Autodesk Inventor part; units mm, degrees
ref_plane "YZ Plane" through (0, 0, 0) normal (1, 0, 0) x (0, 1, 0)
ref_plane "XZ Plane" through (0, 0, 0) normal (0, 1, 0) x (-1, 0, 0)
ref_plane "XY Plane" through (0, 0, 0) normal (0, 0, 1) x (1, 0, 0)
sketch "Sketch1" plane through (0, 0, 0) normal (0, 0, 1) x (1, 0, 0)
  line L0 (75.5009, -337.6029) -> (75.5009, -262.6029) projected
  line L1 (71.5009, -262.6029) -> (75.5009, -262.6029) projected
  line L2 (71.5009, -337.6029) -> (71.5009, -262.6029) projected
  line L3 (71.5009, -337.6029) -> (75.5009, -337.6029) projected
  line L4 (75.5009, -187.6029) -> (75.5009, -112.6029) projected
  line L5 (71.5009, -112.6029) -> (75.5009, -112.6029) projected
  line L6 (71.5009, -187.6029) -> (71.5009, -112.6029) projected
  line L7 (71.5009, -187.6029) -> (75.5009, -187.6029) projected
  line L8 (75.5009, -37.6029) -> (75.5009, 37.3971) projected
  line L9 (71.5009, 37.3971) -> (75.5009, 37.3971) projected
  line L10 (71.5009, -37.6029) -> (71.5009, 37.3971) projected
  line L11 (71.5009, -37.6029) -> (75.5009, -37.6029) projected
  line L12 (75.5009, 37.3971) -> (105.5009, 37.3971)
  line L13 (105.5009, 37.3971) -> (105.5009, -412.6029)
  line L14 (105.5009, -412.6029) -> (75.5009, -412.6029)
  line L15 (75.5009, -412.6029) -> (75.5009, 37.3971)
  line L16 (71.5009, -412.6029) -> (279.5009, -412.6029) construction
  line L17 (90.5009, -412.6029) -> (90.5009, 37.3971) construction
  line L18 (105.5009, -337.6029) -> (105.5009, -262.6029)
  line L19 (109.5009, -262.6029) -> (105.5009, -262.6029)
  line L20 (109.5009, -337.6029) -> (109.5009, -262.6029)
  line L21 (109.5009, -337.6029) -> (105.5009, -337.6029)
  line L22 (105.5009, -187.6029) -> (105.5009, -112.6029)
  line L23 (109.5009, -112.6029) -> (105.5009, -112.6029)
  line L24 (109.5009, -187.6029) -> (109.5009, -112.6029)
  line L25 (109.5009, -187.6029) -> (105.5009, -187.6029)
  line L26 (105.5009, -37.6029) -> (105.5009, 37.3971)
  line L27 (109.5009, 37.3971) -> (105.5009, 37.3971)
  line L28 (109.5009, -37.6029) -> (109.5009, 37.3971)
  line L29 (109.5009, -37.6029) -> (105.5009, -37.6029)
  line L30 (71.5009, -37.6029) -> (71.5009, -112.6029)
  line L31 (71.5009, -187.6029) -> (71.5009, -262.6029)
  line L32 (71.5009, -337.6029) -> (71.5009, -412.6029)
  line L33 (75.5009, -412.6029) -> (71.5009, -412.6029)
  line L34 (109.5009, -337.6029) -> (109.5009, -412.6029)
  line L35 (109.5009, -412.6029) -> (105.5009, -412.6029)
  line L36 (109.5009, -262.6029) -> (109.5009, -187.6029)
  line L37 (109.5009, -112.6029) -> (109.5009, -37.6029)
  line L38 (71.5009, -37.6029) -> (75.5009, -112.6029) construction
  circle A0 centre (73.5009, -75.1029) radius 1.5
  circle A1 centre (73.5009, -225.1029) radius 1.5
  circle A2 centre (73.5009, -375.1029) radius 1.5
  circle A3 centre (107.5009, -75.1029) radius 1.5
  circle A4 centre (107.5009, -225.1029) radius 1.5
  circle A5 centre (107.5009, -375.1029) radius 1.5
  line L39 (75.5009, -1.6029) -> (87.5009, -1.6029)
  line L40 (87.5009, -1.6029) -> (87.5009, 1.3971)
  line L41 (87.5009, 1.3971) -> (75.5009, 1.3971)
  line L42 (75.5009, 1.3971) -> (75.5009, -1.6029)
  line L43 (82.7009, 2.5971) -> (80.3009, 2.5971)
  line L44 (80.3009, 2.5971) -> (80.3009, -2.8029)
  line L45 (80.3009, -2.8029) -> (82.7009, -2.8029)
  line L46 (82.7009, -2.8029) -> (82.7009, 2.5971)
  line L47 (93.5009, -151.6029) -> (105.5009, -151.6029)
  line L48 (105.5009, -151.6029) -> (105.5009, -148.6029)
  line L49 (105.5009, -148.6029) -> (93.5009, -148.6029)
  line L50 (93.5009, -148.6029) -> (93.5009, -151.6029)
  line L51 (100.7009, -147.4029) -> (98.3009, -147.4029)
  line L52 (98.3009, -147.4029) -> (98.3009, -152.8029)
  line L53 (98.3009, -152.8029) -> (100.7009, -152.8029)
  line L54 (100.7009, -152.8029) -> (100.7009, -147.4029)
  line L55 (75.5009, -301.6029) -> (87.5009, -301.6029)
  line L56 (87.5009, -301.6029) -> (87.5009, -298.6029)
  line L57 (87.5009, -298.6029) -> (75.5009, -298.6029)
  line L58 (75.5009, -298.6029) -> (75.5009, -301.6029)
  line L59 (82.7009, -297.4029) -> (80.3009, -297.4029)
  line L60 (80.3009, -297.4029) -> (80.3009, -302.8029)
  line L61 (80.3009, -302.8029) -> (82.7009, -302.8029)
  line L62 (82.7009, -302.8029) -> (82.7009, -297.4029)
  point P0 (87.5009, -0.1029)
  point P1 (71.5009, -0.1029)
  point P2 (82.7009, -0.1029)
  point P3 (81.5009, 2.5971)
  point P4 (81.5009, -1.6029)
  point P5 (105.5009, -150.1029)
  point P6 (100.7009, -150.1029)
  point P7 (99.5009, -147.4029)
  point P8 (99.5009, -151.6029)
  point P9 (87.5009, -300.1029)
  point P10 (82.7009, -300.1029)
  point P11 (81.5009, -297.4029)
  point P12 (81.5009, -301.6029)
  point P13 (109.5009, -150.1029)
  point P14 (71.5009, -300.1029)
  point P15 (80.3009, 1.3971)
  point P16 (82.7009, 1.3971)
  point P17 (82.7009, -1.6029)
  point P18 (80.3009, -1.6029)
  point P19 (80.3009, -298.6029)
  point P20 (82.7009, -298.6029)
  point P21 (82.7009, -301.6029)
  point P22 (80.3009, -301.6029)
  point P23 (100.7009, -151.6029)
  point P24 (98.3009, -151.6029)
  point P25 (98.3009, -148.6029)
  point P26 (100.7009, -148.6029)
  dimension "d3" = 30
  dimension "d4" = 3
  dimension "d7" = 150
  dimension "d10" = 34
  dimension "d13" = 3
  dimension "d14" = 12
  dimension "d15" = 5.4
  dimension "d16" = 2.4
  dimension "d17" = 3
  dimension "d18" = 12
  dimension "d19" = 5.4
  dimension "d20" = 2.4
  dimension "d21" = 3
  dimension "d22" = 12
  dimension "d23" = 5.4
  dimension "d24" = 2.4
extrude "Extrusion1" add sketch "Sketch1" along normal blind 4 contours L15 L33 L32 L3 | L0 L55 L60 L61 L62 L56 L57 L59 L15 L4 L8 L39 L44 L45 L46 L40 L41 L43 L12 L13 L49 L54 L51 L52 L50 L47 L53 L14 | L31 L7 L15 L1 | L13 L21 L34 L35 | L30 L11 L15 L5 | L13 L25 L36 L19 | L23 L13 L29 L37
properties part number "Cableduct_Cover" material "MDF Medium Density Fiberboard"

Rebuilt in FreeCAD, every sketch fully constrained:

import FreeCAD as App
import Part
import Sketcher

V = App.Vector

doc = App.newDocument("Part")
body = doc.addObject("PartDesign::Body", "Body")

# Sketch on XY plane
sketch1 = body.newObject("Sketcher::SketchObject", "Sketch")
sketch1.AttachmentSupport = (doc.getObject("XY_Plane"), [""])
sketch1.MapMode = "FlatFace"
sketch1.addGeometry([
    Part.LineSegment(V(71.5009, -412.6029, 0), V(109.5009, -412.6029, 0)),  # 0
    Part.LineSegment(V(109.5009, -412.6029, 0), V(109.5009, -337.6029, 0)),  # 1
    Part.LineSegment(V(109.5009, -337.6029, 0), V(105.5009, -337.6029, 0)),  # 2
    Part.LineSegment(V(105.5009, -337.6029, 0), V(105.5009, -262.6029, 0)),  # 3
    Part.LineSegment(V(105.5009, -262.6029, 0), V(109.5009, -262.6029, 0)),  # 4
    Part.LineSegment(V(109.5009, -262.6029, 0), V(109.5009, -187.6029, 0)),  # 5
    Part.LineSegment(V(109.5009, -187.6029, 0), V(105.5009, -187.6029, 0)),  # 6
    Part.LineSegment(V(105.5009, -187.6029, 0), V(105.5009, -151.6029, 0)),  # 7
    Part.LineSegment(V(105.5009, -151.6029, 0), V(100.7009, -151.6029, 0)),  # 8
    Part.LineSegment(V(100.7009, -151.6029, 0), V(100.7009, -152.8029, 0)),  # 9
    Part.LineSegment(V(100.7009, -152.8029, 0), V(98.3009, -152.8029, 0)),  # 10
    Part.LineSegment(V(98.3009, -152.8029, 0), V(98.3009, -151.6029, 0)),  # 11
    Part.LineSegment(V(98.3009, -151.6029, 0), V(93.5009, -151.6029, 0)),  # 12
    Part.LineSegment(V(93.5009, -151.6029, 0), V(93.5009, -148.6029, 0)),  # 13
    Part.LineSegment(V(93.5009, -148.6029, 0), V(98.3009, -148.6029, 0)),  # 14
    Part.LineSegment(V(98.3009, -148.6029, 0), V(98.3009, -147.4029, 0)),  # 15
    Part.LineSegment(V(98.3009, -147.4029, 0), V(100.7009, -147.4029, 0)),  # 16
    Part.LineSegment(V(100.7009, -147.4029, 0), V(100.7009, -148.6029, 0)),  # 17
    Part.LineSegment(V(100.7009, -148.6029, 0), V(105.5009, -148.6029, 0)),  # 18
    Part.LineSegment(V(105.5009, -148.6029, 0), V(105.5009, -112.6029, 0)),  # 19
    Part.LineSegment(V(105.5009, -112.6029, 0), V(109.5009, -112.6029, 0)),  # 20
    Part.LineSegment(V(109.5009, -112.6029, 0), V(109.5009, -37.6029, 0)),  # 21
    Part.LineSegment(V(109.5009, -37.6029, 0), V(105.5009, -37.6029, 0)),  # 22
    Part.LineSegment(V(105.5009, -37.6029, 0), V(105.5009, 37.3971, 0)),  # 23
    Part.LineSegment(V(105.5009, 37.3971, 0), V(75.5009, 37.3971, 0)),  # 24
    Part.LineSegment(V(75.5009, 37.3971, 0), V(75.5009, 1.3971, 0)),  # 25
    Part.LineSegment(V(75.5009, 1.3971, 0), V(80.3009, 1.3971, 0)),  # 26
    Part.LineSegment(V(80.3009, 1.3971, 0), V(80.3009, 2.5971, 0)),  # 27
    Part.LineSegment(V(80.3009, 2.5971, 0), V(82.7009, 2.5971, 0)),  # 28
    Part.LineSegment(V(82.7009, 2.5971, 0), V(82.7009, 1.3971, 0)),  # 29
    Part.LineSegment(V(82.7009, 1.3971, 0), V(87.5009, 1.3971, 0)),  # 30
    Part.LineSegment(V(87.5009, 1.3971, 0), V(87.5009, -1.6029, 0)),  # 31
    Part.LineSegment(V(87.5009, -1.6029, 0), V(82.7009, -1.6029, 0)),  # 32
    Part.LineSegment(V(82.7009, -1.6029, 0), V(82.7009, -2.8029, 0)),  # 33
    Part.LineSegment(V(82.7009, -2.8029, 0), V(80.3009, -2.8029, 0)),  # 34
    Part.LineSegment(V(80.3009, -2.8029, 0), V(80.3009, -1.6029, 0)),  # 35
    Part.LineSegment(V(80.3009, -1.6029, 0), V(75.5009, -1.6029, 0)),  # 36
    Part.LineSegment(V(75.5009, -1.6029, 0), V(75.5009, -37.6029, 0)),  # 37
    Part.LineSegment(V(75.5009, -37.6029, 0), V(71.5009, -37.6029, 0)),  # 38
    Part.LineSegment(V(71.5009, -37.6029, 0), V(71.5009, -112.6029, 0)),  # 39
    Part.LineSegment(V(71.5009, -112.6029, 0), V(75.5009, -112.6029, 0)),  # 40
    Part.LineSegment(V(75.5009, -112.6029, 0), V(75.5009, -187.6029, 0)),  # 41
    Part.LineSegment(V(75.5009, -187.6029, 0), V(71.5009, -187.6029, 0)),  # 42
    Part.LineSegment(V(71.5009, -187.6029, 0), V(71.5009, -262.6029, 0)),  # 43
    Part.LineSegment(V(71.5009, -262.6029, 0), V(75.5009, -262.6029, 0)),  # 44
    Part.LineSegment(V(75.5009, -262.6029, 0), V(75.5009, -298.6029, 0)),  # 45
    Part.LineSegment(V(75.5009, -298.6029, 0), V(80.3009, -298.6029, 0)),  # 46
    Part.LineSegment(V(80.3009, -298.6029, 0), V(80.3009, -297.4029, 0)),  # 47
    Part.LineSegment(V(80.3009, -297.4029, 0), V(82.7009, -297.4029, 0)),  # 48
    Part.LineSegment(V(82.7009, -297.4029, 0), V(82.7009, -298.6029, 0)),  # 49
    Part.LineSegment(V(82.7009, -298.6029, 0), V(87.5009, -298.6029, 0)),  # 50
    Part.LineSegment(V(87.5009, -298.6029, 0), V(87.5009, -301.6029, 0)),  # 51
    Part.LineSegment(V(87.5009, -301.6029, 0), V(82.7009, -301.6029, 0)),  # 52
    Part.LineSegment(V(82.7009, -301.6029, 0), V(82.7009, -302.8029, 0)),  # 53
    Part.LineSegment(V(82.7009, -302.8029, 0), V(80.3009, -302.8029, 0)),  # 54
    Part.LineSegment(V(80.3009, -302.8029, 0), V(80.3009, -301.6029, 0)),  # 55
    Part.LineSegment(V(80.3009, -301.6029, 0), V(75.5009, -301.6029, 0)),  # 56
    Part.LineSegment(V(75.5009, -301.6029, 0), V(75.5009, -337.6029, 0)),  # 57
    Part.LineSegment(V(75.5009, -337.6029, 0), V(71.5009, -337.6029, 0)),  # 58
    Part.LineSegment(V(71.5009, -337.6029, 0), V(71.5009, -412.6029, 0)),  # 59
    Part.Circle(V(73.5009, -375.1029, 0), V(0, 0, 1), 1.5),  # 60
    Part.Circle(V(73.5009, -225.1029, 0), V(0, 0, 1), 1.5),  # 61
    Part.Circle(V(73.5009, -75.1029, 0), V(0, 0, 1), 1.5),  # 62
    Part.Circle(V(107.5009, -75.1029, 0), V(0, 0, 1), 1.5),  # 63
    Part.Circle(V(107.5009, -225.1029, 0), V(0, 0, 1), 1.5),  # 64
    Part.Circle(V(107.5009, -375.1029, 0), V(0, 0, 1), 1.5),  # 65
], False)
sketch1.addConstraint([
    Sketcher.Constraint("Coincident", 0, 2, 1, 1),
    Sketcher.Constraint("Coincident", 1, 2, 2, 1),
    Sketcher.Constraint("Coincident", 2, 2, 3, 1),
    Sketcher.Constraint("Coincident", 3, 2, 4, 1),
    Sketcher.Constraint("Coincident", 4, 2, 5, 1),
    Sketcher.Constraint("Coincident", 5, 2, 6, 1),
    Sketcher.Constraint("Coincident", 6, 2, 7, 1),
    Sketcher.Constraint("Coincident", 7, 2, 8, 1),
    Sketcher.Constraint("Coincident", 8, 2, 9, 1),
    Sketcher.Constraint("Coincident", 9, 2, 10, 1),
    Sketcher.Constraint("Coincident", 10, 2, 11, 1),
    Sketcher.Constraint("Coincident", 11, 2, 12, 1),
    Sketcher.Constraint("Coincident", 12, 2, 13, 1),
    Sketcher.Constraint("Coincident", 13, 2, 14, 1),
    Sketcher.Constraint("Coincident", 14, 2, 15, 1),
    Sketcher.Constraint("Coincident", 15, 2, 16, 1),
    Sketcher.Constraint("Coincident", 16, 2, 17, 1),
    Sketcher.Constraint("Coincident", 17, 2, 18, 1),
    Sketcher.Constraint("Coincident", 18, 2, 19, 1),
    Sketcher.Constraint("Coincident", 19, 2, 20, 1),
    Sketcher.Constraint("Coincident", 20, 2, 21, 1),
    Sketcher.Constraint("Coincident", 21, 2, 22, 1),
    Sketcher.Constraint("Coincident", 22, 2, 23, 1),
    Sketcher.Constraint("Coincident", 23, 2, 24, 1),
    Sketcher.Constraint("Coincident", 24, 2, 25, 1),
    Sketcher.Constraint("Coincident", 25, 2, 26, 1),
    Sketcher.Constraint("Coincident", 26, 2, 27, 1),
    Sketcher.Constraint("Coincident", 27, 2, 28, 1),
    Sketcher.Constraint("Coincident", 28, 2, 29, 1),
    Sketcher.Constraint("Coincident", 29, 2, 30, 1),
    Sketcher.Constraint("Coincident", 30, 2, 31, 1),
    Sketcher.Constraint("Coincident", 31, 2, 32, 1),
    Sketcher.Constraint("Coincident", 32, 2, 33, 1),
    Sketcher.Constraint("Coincident", 33, 2, 34, 1),
    Sketcher.Constraint("Coincident", 34, 2, 35, 1),
    Sketcher.Constraint("Coincident", 35, 2, 36, 1),
    Sketcher.Constraint("Coincident", 36, 2, 37, 1),
    Sketcher.Constraint("Coincident", 37, 2, 38, 1),
    Sketcher.Constraint("Coincident", 38, 2, 39, 1),
    Sketcher.Constraint("Coincident", 39, 2, 40, 1),
    Sketcher.Constraint("Coincident", 40, 2, 41, 1),
    Sketcher.Constraint("Coincident", 41, 2, 42, 1),
    Sketcher.Constraint("Coincident", 42, 2, 43, 1),
    Sketcher.Constraint("Coincident", 43, 2, 44, 1),
    Sketcher.Constraint("Coincident", 44, 2, 45, 1),
    Sketcher.Constraint("Coincident", 45, 2, 46, 1),
    Sketcher.Constraint("Coincident", 46, 2, 47, 1),
    Sketcher.Constraint("Coincident", 47, 2, 48, 1),
    Sketcher.Constraint("Coincident", 48, 2, 49, 1),
    Sketcher.Constraint("Coincident", 49, 2, 50, 1),
    Sketcher.Constraint("Coincident", 50, 2, 51, 1),
    Sketcher.Constraint("Coincident", 51, 2, 52, 1),
    Sketcher.Constraint("Coincident", 52, 2, 53, 1),
    Sketcher.Constraint("Coincident", 53, 2, 54, 1),
    Sketcher.Constraint("Coincident", 54, 2, 55, 1),
    Sketcher.Constraint("Coincident", 55, 2, 56, 1),
    Sketcher.Constraint("Coincident", 56, 2, 57, 1),
    Sketcher.Constraint("Coincident", 57, 2, 58, 1),
    Sketcher.Constraint("Coincident", 58, 2, 59, 1),
    Sketcher.Constraint("Coincident", 59, 2, 0, 1),
    Sketcher.Constraint("Horizontal", 0),
    Sketcher.Constraint("Vertical", 1),
    Sketcher.Constraint("Horizontal", 2),
    Sketcher.Constraint("Vertical", 3),
    Sketcher.Constraint("Horizontal", 4),
    Sketcher.Constraint("Vertical", 5),
    Sketcher.Constraint("Horizontal", 6),
    Sketcher.Constraint("Vertical", 7),
    Sketcher.Constraint("Horizontal", 8),
    Sketcher.Constraint("Vertical", 9),
    Sketcher.Constraint("Horizontal", 10),
    Sketcher.Constraint("Vertical", 11),
    Sketcher.Constraint("Horizontal", 12),
    Sketcher.Constraint("Vertical", 13),
    Sketcher.Constraint("Horizontal", 14),
    Sketcher.Constraint("Vertical", 15),
    Sketcher.Constraint("Horizontal", 16),
    Sketcher.Constraint("Vertical", 17),
    Sketcher.Constraint("Horizontal", 18),
    Sketcher.Constraint("Vertical", 19),
    Sketcher.Constraint("Horizontal", 20),
    Sketcher.Constraint("Vertical", 21),
    Sketcher.Constraint("Horizontal", 22),
    Sketcher.Constraint("Vertical", 23),
    Sketcher.Constraint("Horizontal", 24),
    Sketcher.Constraint("Vertical", 25),
    Sketcher.Constraint("Horizontal", 26),
    Sketcher.Constraint("Vertical", 27),
    Sketcher.Constraint("Horizontal", 28),
    Sketcher.Constraint("Vertical", 29),
    Sketcher.Constraint("Horizontal", 30),
    Sketcher.Constraint("Vertical", 31),
    Sketcher.Constraint("Horizontal", 32),
    Sketcher.Constraint("Vertical", 33),
    Sketcher.Constraint("Horizontal", 34),
    Sketcher.Constraint("Vertical", 35),
    Sketcher.Constraint("Horizontal", 36),
    Sketcher.Constraint("Vertical", 37),
    Sketcher.Constraint("Horizontal", 38),
    Sketcher.Constraint("Vertical", 39),
    Sketcher.Constraint("Horizontal", 40),
    Sketcher.Constraint("Vertical", 41),
    Sketcher.Constraint("Horizontal", 42),
    Sketcher.Constraint("Vertical", 43),
    Sketcher.Constraint("Horizontal", 44),
    Sketcher.Constraint("Vertical", 45),
    Sketcher.Constraint("Horizontal", 46),
    Sketcher.Constraint("Vertical", 47),
    Sketcher.Constraint("Horizontal", 48),
    Sketcher.Constraint("Vertical", 49),
    Sketcher.Constraint("Horizontal", 50),
    Sketcher.Constraint("Vertical", 51),
    Sketcher.Constraint("Horizontal", 52),
    Sketcher.Constraint("Vertical", 53),
    Sketcher.Constraint("Horizontal", 54),
    Sketcher.Constraint("Vertical", 55),
    Sketcher.Constraint("Horizontal", 56),
    Sketcher.Constraint("Vertical", 57),
    Sketcher.Constraint("Horizontal", 58),
    Sketcher.Constraint("Vertical", 59),
    Sketcher.Constraint("Equal", 60, 61),
    Sketcher.Constraint("Equal", 61, 62),
    Sketcher.Constraint("Equal", 62, 63),
    Sketcher.Constraint("Equal", 63, 64),
    Sketcher.Constraint("Equal", 64, 65),
    Sketcher.Constraint("Horizontal", 62, 3, 63, 3),
    Sketcher.Constraint("Horizontal", 61, 3, 64, 3),
    Sketcher.Constraint("Horizontal", 60, 3, 65, 3),
    Sketcher.Constraint("Horizontal", 8, 2, 11, 2),
    Sketcher.Constraint("Horizontal", 14, 2, 17, 2),
    Sketcher.Constraint("Horizontal", 26, 2, 29, 2),
    Sketcher.Constraint("Horizontal", 32, 2, 35, 2),
    Sketcher.Constraint("Horizontal", 22, 2, 37, 2),
    Sketcher.Constraint("Horizontal", 20, 2, 39, 2),
    Sketcher.Constraint("Horizontal", 6, 2, 41, 2),
    Sketcher.Constraint("Horizontal", 4, 2, 43, 2),
    Sketcher.Constraint("Horizontal", 46, 2, 49, 2),
    Sketcher.Constraint("Horizontal", 52, 2, 55, 2),
    Sketcher.Constraint("Horizontal", 2, 2, 57, 2),
    Sketcher.Constraint("Vertical", 60, 3, 61, 3),
    Sketcher.Constraint("Vertical", 61, 3, 62, 3),
    Sketcher.Constraint("Vertical", 63, 3, 64, 3),
    Sketcher.Constraint("Vertical", 64, 3, 65, 3),
    Sketcher.Constraint("Vertical", 1, 2, 4, 2),
    Sketcher.Constraint("Vertical", 3, 2, 6, 2),
    Sketcher.Constraint("Vertical", 11, 2, 14, 2),
    Sketcher.Constraint("Vertical", 9, 2, 16, 2),
    Sketcher.Constraint("Vertical", 7, 2, 18, 2),
    Sketcher.Constraint("Vertical", 5, 2, 20, 2),
    Sketcher.Constraint("Vertical", 19, 2, 22, 2),
    Sketcher.Constraint("Vertical", 29, 2, 32, 2),
    Sketcher.Constraint("Vertical", 27, 2, 34, 2),
    Sketcher.Constraint("Vertical", 25, 2, 36, 2),
    Sketcher.Constraint("Vertical", 37, 2, 40, 2),
    Sketcher.Constraint("Vertical", 39, 2, 42, 2),
    Sketcher.Constraint("Vertical", 41, 2, 44, 2),
    Sketcher.Constraint("Vertical", 35, 2, 46, 2),
    Sketcher.Constraint("Vertical", 33, 2, 48, 2),
    Sketcher.Constraint("Vertical", 31, 2, 50, 2),
    Sketcher.Constraint("Vertical", 49, 2, 52, 2),
    Sketcher.Constraint("Vertical", 47, 2, 54, 2),
    Sketcher.Constraint("Vertical", 45, 2, 56, 2),
    Sketcher.Constraint("Vertical", 43, 2, 58, 2),
    Sketcher.Constraint("Equal", 8, 12),
    Sketcher.Constraint("Equal", 18, 26),
    Sketcher.Constraint("Equal", 16, 28),
    Sketcher.Constraint("Equal", 26, 30),
    Sketcher.Constraint("Equal", 22, 38),
    Sketcher.Constraint("Equal", 1, 3),
    Sketcher.Constraint("Equal", 3, 5),
    Sketcher.Constraint("Equal", 11, 15),
    Sketcher.Constraint("Equal", 7, 19),
    Sketcher.Constraint("Equal", 5, 21),
    Sketcher.Constraint("Equal", 21, 23),
    Sketcher.Constraint("Equal", 19, 25),
    Sketcher.Constraint("Equal", 17, 27),
    Sketcher.Constraint("Equal", 13, 31),
    Sketcher.Constraint("Equal", 29, 33),
    Sketcher.Constraint("Equal", 25, 37),
    Sketcher.Constraint("Equal", 37, 45),
    Sketcher.Constraint("Equal", 35, 47),
    Sketcher.Constraint("Equal", 31, 51),
    Sketcher.Constraint("Equal", 49, 53),
    Sketcher.Constraint("Diameter", 60, 3.0),
    Sketcher.Constraint("DistanceX", 24, 2, 24, 1, 30.0),
    Sketcher.Constraint("DistanceY", 13, 1, 13, 2, 3.0),
    Sketcher.Constraint("DistanceX", 10, 2, 10, 1, 2.4),
    Sketcher.Constraint("DistanceX", 0, 1, 0, 2, 38.0),
    Sketcher.Constraint("DistanceY", 1, 1, 1, 2, 75.0),
    Sketcher.Constraint("DistanceX", 8, 2, 8, 1, 4.8),
    Sketcher.Constraint("DistanceY", 9, 2, 9, 1, 1.2),
    Sketcher.Constraint("DistanceX", -1, 1, 60, 3, 73.501),
    Sketcher.Constraint("DistanceY", 60, 3, -1, 1, 375.103),
    Sketcher.Constraint("DistanceY", 61, 3, -1, 1, 225.103),
    Sketcher.Constraint("DistanceY", 62, 3, -1, 1, 75.103),
    Sketcher.Constraint("DistanceX", -1, 1, 63, 3, 107.501),
    Sketcher.Constraint("DistanceX", -1, 1, 0, 2, 109.501),
    Sketcher.Constraint("DistanceY", 0, 2, -1, 1, 412.603),
])
pad1 = body.newObject("PartDesign::Pad", "Pad")
pad1.Profile = sketch1
pad1.Length = 4

doc.recompute()
